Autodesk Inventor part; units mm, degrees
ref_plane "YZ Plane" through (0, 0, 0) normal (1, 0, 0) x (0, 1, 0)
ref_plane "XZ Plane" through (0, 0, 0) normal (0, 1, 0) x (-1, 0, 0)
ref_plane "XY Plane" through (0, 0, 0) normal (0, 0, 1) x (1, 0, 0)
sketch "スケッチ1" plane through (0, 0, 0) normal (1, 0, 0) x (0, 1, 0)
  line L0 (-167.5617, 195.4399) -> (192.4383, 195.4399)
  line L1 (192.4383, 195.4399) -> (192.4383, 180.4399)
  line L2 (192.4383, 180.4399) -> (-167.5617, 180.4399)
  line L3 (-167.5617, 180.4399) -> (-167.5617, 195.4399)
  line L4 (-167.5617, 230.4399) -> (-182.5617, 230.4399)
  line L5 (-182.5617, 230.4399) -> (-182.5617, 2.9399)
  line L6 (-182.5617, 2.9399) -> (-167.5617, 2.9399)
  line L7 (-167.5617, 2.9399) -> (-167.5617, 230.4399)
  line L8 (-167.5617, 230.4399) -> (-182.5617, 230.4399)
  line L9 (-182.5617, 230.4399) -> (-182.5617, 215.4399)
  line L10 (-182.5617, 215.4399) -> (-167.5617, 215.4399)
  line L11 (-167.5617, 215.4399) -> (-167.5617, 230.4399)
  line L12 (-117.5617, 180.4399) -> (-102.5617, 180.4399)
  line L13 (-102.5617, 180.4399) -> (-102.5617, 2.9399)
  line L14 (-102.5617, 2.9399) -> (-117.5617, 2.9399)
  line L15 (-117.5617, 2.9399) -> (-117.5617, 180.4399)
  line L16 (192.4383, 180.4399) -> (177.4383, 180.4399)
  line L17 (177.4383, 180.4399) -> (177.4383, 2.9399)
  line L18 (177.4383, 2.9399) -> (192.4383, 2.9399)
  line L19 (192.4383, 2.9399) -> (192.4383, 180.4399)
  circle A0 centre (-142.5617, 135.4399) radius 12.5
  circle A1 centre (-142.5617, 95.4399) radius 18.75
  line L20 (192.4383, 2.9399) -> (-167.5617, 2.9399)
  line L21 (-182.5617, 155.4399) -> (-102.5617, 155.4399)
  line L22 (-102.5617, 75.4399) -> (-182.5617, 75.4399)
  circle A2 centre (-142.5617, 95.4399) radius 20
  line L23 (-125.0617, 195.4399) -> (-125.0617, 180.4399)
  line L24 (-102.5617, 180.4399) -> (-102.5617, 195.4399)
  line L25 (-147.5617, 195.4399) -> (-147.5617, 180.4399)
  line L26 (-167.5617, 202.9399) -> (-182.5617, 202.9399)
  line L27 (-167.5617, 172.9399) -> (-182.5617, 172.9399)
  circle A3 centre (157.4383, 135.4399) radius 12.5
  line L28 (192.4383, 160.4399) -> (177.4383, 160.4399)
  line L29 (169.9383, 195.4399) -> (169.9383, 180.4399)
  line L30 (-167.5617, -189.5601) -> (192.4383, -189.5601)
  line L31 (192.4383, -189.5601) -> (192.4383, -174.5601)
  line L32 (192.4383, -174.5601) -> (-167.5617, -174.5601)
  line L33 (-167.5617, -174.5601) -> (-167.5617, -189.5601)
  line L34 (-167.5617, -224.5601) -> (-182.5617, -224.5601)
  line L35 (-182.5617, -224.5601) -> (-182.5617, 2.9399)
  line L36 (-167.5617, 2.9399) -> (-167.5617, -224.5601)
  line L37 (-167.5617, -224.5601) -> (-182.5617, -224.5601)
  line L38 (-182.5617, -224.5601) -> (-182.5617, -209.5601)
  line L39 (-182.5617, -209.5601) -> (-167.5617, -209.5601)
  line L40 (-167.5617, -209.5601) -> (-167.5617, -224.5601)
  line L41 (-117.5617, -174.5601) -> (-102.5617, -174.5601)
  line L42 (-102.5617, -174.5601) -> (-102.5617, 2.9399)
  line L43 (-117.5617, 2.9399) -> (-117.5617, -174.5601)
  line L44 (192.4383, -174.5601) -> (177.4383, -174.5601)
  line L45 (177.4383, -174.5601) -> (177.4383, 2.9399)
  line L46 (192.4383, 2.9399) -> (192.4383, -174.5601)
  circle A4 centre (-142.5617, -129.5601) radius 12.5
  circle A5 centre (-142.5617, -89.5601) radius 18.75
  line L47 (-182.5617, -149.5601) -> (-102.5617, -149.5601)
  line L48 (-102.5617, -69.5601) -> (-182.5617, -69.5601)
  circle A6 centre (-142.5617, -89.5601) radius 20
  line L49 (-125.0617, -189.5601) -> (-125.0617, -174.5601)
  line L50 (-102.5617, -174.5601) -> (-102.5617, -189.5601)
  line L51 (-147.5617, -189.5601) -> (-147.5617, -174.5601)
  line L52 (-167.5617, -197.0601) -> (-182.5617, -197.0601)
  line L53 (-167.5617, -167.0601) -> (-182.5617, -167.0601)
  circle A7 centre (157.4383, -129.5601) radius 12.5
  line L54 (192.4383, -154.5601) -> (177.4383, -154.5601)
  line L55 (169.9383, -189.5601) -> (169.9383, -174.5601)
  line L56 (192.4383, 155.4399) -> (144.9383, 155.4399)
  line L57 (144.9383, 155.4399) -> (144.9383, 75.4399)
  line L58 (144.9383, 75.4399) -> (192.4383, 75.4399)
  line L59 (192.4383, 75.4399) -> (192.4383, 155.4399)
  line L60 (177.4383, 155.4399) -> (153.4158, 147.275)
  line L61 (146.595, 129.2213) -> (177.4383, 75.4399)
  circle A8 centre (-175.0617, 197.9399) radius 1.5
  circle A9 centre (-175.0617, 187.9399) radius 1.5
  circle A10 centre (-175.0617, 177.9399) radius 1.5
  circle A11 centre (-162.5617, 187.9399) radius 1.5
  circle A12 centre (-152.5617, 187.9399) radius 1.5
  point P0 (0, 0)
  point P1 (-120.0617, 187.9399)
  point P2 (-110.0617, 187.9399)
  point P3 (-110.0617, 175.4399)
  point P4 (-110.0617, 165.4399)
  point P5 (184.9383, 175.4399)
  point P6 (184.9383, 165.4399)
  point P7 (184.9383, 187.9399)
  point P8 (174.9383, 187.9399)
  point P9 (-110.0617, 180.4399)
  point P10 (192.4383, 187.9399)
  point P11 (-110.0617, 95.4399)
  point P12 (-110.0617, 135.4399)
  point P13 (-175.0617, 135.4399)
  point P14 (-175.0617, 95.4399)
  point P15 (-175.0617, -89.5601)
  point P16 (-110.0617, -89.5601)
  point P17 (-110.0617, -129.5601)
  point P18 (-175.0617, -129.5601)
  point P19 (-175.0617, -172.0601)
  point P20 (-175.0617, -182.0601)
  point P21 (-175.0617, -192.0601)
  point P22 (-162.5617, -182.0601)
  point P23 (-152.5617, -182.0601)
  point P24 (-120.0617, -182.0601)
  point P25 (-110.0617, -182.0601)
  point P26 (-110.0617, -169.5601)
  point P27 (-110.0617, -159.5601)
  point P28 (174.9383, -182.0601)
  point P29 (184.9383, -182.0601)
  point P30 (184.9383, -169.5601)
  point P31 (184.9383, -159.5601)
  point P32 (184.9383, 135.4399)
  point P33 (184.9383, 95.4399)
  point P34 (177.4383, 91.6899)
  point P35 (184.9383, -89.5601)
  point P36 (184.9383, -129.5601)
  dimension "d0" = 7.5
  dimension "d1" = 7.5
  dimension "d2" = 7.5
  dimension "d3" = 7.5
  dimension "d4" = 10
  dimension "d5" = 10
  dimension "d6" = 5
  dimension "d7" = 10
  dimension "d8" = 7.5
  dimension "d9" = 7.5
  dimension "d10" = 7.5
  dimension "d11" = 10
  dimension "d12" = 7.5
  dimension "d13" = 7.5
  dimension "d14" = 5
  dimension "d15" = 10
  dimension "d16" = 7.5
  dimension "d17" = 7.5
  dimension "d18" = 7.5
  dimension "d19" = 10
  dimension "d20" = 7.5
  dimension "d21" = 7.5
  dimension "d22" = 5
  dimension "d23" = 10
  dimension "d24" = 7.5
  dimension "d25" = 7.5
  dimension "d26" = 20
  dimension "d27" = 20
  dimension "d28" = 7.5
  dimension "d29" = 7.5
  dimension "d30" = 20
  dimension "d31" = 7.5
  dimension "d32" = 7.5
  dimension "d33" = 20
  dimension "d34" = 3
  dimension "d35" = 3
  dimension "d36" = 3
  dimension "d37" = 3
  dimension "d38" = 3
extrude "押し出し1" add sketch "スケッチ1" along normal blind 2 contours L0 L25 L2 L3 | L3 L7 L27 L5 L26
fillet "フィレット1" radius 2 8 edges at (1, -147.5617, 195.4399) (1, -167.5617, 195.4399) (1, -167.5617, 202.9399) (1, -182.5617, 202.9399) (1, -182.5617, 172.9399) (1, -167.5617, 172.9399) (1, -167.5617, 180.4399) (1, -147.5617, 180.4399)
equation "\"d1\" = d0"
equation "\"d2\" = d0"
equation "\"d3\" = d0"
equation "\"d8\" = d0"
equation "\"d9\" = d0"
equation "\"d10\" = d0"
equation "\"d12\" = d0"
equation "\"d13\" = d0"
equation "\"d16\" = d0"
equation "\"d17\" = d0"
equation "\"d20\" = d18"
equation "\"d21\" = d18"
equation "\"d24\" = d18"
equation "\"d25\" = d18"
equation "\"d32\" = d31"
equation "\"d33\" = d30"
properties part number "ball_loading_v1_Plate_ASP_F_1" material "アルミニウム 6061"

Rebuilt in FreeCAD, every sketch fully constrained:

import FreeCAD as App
import Part
import Sketcher
Q = App.Units.Quantity


def edges_at(feature, points):
    """Names of the edges that pass closest to the given points."""
    edges = feature.Shape.Edges
    near = lambda p: min(range(len(edges)), key=lambda i: edges[i].distToShape(Part.Vertex(*p))[0])
    return sorted({f"Edge{near(p) + 1}" for p in points})


def add_polygon(sketch, points):
    """Adds a closed chain of lines whose ends are joined by coincident constraints."""
    first, n = sketch.GeometryCount, len(points)
    for a, b in zip(points, points[1:] + points[:1]):
        sketch.addGeometry(Part.LineSegment(App.Vector(*a, 0), App.Vector(*b, 0)), False)
    for i in range(n):
        sketch.addConstraint(Sketcher.Constraint("Coincident", first + i, 2, first + (i + 1) % n, 1))

doc = App.newDocument("Part")
body = doc.addObject("PartDesign::Body", "Body")

# Sketch on YZ plane
sketch1 = body.newObject("Sketcher::SketchObject", "Sketch")
sketch1.AttachmentSupport = (doc.getObject("YZ_Plane"), [""])
sketch1.MapMode = "FlatFace"
add_polygon(sketch1, [(-147.6, 195.4), (-167.6, 195.4), (-167.6, 202.9), (-182.6, 202.9), (-182.6, 172.9), (-167.6, 172.9), (-167.6, 180.4), (-147.6, 180.4)])  # lines 0-7
sketch1.addGeometry(Part.Circle(App.Vector(-162.6, 187.9, 0), App.Vector(0, 0, 1), 1.5), False)  # 8
sketch1.addGeometry(Part.Circle(App.Vector(-152.6, 187.9, 0), App.Vector(0, 0, 1), 1.5), False)  # 9
sketch1.addGeometry(Part.Circle(App.Vector(-175.1, 197.9, 0), App.Vector(0, 0, 1), 1.5), False)  # 10
sketch1.addGeometry(Part.Circle(App.Vector(-175.1, 177.9, 0), App.Vector(0, 0, 1), 1.5), False)  # 11
sketch1.addGeometry(Part.Circle(App.Vector(-175.1, 187.9, 0), App.Vector(0, 0, 1), 1.5), False)  # 12
sketch1.addConstraint([
    Sketcher.Constraint("Horizontal", 0),
    Sketcher.Constraint("Vertical", 1),
    Sketcher.Constraint("Horizontal", 2),
    Sketcher.Constraint("Vertical", 3),
    Sketcher.Constraint("Horizontal", 4),
    Sketcher.Constraint("Vertical", 5),
    Sketcher.Constraint("Horizontal", 6),
    Sketcher.Constraint("Vertical", 7),
    Sketcher.Constraint("Equal", 8, 9),
    Sketcher.Constraint("Equal", 9, 10),
    Sketcher.Constraint("Equal", 10, 11),
    Sketcher.Constraint("Equal", 11, 12),
    Sketcher.Constraint("Horizontal", 8, 3, 9, 3),
    Sketcher.Constraint("Horizontal", 9, 3, 12, 3),
    Sketcher.Constraint("Vertical", 10, 3, 11, 3),
    Sketcher.Constraint("Vertical", 11, 3, 12, 3),
    Sketcher.Constraint("Vertical", 1, 2, 4, 2),
    Sketcher.Constraint("Equal", 1, 5),
    Sketcher.Constraint("Equal", 4, 7),
    Sketcher.Constraint("Diameter", 8, Q("3 mm")),
    Sketcher.Constraint("DistanceX", 0, 2, 0, 1, Q("20 mm")),
    Sketcher.Constraint("DistanceY", 1, 1, 1, 2, Q("7.5 mm")),
    Sketcher.Constraint("DistanceX", 8, 3, 9, 3, Q("10 mm")),
    Sketcher.Constraint("DistanceY", 8, 3, 10, 3, Q("10 mm")),
    Sketcher.Constraint("DistanceY", 11, 3, 8, 3, Q("10 mm")),
    Sketcher.Constraint("DistanceX", 0, 2, 8, 3, Q("5 mm")),
    Sketcher.Constraint("DistanceY", 10, 3, 1, 2, Q("5 mm")),
    Sketcher.Constraint("DistanceX", 2, 2, 8, 3, Q("20 mm")),
    Sketcher.Constraint("DistanceX", 10, 3, 0, 2, Q("7.5 mm")),
    Sketcher.Constraint("DistanceY", -1, 1, 8, 3, Q("187.94 mm")),
    Sketcher.Constraint("DistanceX", 8, 3, -1, 1, Q("162.5617 mm")),
])
pad1 = body.newObject("PartDesign::Pad", "Pad")
pad1.Profile = sketch1
pad1.Length = 2
doc.recompute()

fillet = body.newObject("PartDesign::Fillet", "Fillet")
fillet.Base = (pad1, edges_at(pad1, [
    (1, -147.562, 195.44),
    (1, -167.562, 195.44),
    (1, -167.562, 202.94),
    (1, -182.562, 202.94),
    (1, -182.562, 172.94),
    (1, -167.562, 172.94),
    (1, -167.562, 180.44),
    (1, -147.562, 180.44),
]))
fillet.Radius = 2

doc.recompute()
